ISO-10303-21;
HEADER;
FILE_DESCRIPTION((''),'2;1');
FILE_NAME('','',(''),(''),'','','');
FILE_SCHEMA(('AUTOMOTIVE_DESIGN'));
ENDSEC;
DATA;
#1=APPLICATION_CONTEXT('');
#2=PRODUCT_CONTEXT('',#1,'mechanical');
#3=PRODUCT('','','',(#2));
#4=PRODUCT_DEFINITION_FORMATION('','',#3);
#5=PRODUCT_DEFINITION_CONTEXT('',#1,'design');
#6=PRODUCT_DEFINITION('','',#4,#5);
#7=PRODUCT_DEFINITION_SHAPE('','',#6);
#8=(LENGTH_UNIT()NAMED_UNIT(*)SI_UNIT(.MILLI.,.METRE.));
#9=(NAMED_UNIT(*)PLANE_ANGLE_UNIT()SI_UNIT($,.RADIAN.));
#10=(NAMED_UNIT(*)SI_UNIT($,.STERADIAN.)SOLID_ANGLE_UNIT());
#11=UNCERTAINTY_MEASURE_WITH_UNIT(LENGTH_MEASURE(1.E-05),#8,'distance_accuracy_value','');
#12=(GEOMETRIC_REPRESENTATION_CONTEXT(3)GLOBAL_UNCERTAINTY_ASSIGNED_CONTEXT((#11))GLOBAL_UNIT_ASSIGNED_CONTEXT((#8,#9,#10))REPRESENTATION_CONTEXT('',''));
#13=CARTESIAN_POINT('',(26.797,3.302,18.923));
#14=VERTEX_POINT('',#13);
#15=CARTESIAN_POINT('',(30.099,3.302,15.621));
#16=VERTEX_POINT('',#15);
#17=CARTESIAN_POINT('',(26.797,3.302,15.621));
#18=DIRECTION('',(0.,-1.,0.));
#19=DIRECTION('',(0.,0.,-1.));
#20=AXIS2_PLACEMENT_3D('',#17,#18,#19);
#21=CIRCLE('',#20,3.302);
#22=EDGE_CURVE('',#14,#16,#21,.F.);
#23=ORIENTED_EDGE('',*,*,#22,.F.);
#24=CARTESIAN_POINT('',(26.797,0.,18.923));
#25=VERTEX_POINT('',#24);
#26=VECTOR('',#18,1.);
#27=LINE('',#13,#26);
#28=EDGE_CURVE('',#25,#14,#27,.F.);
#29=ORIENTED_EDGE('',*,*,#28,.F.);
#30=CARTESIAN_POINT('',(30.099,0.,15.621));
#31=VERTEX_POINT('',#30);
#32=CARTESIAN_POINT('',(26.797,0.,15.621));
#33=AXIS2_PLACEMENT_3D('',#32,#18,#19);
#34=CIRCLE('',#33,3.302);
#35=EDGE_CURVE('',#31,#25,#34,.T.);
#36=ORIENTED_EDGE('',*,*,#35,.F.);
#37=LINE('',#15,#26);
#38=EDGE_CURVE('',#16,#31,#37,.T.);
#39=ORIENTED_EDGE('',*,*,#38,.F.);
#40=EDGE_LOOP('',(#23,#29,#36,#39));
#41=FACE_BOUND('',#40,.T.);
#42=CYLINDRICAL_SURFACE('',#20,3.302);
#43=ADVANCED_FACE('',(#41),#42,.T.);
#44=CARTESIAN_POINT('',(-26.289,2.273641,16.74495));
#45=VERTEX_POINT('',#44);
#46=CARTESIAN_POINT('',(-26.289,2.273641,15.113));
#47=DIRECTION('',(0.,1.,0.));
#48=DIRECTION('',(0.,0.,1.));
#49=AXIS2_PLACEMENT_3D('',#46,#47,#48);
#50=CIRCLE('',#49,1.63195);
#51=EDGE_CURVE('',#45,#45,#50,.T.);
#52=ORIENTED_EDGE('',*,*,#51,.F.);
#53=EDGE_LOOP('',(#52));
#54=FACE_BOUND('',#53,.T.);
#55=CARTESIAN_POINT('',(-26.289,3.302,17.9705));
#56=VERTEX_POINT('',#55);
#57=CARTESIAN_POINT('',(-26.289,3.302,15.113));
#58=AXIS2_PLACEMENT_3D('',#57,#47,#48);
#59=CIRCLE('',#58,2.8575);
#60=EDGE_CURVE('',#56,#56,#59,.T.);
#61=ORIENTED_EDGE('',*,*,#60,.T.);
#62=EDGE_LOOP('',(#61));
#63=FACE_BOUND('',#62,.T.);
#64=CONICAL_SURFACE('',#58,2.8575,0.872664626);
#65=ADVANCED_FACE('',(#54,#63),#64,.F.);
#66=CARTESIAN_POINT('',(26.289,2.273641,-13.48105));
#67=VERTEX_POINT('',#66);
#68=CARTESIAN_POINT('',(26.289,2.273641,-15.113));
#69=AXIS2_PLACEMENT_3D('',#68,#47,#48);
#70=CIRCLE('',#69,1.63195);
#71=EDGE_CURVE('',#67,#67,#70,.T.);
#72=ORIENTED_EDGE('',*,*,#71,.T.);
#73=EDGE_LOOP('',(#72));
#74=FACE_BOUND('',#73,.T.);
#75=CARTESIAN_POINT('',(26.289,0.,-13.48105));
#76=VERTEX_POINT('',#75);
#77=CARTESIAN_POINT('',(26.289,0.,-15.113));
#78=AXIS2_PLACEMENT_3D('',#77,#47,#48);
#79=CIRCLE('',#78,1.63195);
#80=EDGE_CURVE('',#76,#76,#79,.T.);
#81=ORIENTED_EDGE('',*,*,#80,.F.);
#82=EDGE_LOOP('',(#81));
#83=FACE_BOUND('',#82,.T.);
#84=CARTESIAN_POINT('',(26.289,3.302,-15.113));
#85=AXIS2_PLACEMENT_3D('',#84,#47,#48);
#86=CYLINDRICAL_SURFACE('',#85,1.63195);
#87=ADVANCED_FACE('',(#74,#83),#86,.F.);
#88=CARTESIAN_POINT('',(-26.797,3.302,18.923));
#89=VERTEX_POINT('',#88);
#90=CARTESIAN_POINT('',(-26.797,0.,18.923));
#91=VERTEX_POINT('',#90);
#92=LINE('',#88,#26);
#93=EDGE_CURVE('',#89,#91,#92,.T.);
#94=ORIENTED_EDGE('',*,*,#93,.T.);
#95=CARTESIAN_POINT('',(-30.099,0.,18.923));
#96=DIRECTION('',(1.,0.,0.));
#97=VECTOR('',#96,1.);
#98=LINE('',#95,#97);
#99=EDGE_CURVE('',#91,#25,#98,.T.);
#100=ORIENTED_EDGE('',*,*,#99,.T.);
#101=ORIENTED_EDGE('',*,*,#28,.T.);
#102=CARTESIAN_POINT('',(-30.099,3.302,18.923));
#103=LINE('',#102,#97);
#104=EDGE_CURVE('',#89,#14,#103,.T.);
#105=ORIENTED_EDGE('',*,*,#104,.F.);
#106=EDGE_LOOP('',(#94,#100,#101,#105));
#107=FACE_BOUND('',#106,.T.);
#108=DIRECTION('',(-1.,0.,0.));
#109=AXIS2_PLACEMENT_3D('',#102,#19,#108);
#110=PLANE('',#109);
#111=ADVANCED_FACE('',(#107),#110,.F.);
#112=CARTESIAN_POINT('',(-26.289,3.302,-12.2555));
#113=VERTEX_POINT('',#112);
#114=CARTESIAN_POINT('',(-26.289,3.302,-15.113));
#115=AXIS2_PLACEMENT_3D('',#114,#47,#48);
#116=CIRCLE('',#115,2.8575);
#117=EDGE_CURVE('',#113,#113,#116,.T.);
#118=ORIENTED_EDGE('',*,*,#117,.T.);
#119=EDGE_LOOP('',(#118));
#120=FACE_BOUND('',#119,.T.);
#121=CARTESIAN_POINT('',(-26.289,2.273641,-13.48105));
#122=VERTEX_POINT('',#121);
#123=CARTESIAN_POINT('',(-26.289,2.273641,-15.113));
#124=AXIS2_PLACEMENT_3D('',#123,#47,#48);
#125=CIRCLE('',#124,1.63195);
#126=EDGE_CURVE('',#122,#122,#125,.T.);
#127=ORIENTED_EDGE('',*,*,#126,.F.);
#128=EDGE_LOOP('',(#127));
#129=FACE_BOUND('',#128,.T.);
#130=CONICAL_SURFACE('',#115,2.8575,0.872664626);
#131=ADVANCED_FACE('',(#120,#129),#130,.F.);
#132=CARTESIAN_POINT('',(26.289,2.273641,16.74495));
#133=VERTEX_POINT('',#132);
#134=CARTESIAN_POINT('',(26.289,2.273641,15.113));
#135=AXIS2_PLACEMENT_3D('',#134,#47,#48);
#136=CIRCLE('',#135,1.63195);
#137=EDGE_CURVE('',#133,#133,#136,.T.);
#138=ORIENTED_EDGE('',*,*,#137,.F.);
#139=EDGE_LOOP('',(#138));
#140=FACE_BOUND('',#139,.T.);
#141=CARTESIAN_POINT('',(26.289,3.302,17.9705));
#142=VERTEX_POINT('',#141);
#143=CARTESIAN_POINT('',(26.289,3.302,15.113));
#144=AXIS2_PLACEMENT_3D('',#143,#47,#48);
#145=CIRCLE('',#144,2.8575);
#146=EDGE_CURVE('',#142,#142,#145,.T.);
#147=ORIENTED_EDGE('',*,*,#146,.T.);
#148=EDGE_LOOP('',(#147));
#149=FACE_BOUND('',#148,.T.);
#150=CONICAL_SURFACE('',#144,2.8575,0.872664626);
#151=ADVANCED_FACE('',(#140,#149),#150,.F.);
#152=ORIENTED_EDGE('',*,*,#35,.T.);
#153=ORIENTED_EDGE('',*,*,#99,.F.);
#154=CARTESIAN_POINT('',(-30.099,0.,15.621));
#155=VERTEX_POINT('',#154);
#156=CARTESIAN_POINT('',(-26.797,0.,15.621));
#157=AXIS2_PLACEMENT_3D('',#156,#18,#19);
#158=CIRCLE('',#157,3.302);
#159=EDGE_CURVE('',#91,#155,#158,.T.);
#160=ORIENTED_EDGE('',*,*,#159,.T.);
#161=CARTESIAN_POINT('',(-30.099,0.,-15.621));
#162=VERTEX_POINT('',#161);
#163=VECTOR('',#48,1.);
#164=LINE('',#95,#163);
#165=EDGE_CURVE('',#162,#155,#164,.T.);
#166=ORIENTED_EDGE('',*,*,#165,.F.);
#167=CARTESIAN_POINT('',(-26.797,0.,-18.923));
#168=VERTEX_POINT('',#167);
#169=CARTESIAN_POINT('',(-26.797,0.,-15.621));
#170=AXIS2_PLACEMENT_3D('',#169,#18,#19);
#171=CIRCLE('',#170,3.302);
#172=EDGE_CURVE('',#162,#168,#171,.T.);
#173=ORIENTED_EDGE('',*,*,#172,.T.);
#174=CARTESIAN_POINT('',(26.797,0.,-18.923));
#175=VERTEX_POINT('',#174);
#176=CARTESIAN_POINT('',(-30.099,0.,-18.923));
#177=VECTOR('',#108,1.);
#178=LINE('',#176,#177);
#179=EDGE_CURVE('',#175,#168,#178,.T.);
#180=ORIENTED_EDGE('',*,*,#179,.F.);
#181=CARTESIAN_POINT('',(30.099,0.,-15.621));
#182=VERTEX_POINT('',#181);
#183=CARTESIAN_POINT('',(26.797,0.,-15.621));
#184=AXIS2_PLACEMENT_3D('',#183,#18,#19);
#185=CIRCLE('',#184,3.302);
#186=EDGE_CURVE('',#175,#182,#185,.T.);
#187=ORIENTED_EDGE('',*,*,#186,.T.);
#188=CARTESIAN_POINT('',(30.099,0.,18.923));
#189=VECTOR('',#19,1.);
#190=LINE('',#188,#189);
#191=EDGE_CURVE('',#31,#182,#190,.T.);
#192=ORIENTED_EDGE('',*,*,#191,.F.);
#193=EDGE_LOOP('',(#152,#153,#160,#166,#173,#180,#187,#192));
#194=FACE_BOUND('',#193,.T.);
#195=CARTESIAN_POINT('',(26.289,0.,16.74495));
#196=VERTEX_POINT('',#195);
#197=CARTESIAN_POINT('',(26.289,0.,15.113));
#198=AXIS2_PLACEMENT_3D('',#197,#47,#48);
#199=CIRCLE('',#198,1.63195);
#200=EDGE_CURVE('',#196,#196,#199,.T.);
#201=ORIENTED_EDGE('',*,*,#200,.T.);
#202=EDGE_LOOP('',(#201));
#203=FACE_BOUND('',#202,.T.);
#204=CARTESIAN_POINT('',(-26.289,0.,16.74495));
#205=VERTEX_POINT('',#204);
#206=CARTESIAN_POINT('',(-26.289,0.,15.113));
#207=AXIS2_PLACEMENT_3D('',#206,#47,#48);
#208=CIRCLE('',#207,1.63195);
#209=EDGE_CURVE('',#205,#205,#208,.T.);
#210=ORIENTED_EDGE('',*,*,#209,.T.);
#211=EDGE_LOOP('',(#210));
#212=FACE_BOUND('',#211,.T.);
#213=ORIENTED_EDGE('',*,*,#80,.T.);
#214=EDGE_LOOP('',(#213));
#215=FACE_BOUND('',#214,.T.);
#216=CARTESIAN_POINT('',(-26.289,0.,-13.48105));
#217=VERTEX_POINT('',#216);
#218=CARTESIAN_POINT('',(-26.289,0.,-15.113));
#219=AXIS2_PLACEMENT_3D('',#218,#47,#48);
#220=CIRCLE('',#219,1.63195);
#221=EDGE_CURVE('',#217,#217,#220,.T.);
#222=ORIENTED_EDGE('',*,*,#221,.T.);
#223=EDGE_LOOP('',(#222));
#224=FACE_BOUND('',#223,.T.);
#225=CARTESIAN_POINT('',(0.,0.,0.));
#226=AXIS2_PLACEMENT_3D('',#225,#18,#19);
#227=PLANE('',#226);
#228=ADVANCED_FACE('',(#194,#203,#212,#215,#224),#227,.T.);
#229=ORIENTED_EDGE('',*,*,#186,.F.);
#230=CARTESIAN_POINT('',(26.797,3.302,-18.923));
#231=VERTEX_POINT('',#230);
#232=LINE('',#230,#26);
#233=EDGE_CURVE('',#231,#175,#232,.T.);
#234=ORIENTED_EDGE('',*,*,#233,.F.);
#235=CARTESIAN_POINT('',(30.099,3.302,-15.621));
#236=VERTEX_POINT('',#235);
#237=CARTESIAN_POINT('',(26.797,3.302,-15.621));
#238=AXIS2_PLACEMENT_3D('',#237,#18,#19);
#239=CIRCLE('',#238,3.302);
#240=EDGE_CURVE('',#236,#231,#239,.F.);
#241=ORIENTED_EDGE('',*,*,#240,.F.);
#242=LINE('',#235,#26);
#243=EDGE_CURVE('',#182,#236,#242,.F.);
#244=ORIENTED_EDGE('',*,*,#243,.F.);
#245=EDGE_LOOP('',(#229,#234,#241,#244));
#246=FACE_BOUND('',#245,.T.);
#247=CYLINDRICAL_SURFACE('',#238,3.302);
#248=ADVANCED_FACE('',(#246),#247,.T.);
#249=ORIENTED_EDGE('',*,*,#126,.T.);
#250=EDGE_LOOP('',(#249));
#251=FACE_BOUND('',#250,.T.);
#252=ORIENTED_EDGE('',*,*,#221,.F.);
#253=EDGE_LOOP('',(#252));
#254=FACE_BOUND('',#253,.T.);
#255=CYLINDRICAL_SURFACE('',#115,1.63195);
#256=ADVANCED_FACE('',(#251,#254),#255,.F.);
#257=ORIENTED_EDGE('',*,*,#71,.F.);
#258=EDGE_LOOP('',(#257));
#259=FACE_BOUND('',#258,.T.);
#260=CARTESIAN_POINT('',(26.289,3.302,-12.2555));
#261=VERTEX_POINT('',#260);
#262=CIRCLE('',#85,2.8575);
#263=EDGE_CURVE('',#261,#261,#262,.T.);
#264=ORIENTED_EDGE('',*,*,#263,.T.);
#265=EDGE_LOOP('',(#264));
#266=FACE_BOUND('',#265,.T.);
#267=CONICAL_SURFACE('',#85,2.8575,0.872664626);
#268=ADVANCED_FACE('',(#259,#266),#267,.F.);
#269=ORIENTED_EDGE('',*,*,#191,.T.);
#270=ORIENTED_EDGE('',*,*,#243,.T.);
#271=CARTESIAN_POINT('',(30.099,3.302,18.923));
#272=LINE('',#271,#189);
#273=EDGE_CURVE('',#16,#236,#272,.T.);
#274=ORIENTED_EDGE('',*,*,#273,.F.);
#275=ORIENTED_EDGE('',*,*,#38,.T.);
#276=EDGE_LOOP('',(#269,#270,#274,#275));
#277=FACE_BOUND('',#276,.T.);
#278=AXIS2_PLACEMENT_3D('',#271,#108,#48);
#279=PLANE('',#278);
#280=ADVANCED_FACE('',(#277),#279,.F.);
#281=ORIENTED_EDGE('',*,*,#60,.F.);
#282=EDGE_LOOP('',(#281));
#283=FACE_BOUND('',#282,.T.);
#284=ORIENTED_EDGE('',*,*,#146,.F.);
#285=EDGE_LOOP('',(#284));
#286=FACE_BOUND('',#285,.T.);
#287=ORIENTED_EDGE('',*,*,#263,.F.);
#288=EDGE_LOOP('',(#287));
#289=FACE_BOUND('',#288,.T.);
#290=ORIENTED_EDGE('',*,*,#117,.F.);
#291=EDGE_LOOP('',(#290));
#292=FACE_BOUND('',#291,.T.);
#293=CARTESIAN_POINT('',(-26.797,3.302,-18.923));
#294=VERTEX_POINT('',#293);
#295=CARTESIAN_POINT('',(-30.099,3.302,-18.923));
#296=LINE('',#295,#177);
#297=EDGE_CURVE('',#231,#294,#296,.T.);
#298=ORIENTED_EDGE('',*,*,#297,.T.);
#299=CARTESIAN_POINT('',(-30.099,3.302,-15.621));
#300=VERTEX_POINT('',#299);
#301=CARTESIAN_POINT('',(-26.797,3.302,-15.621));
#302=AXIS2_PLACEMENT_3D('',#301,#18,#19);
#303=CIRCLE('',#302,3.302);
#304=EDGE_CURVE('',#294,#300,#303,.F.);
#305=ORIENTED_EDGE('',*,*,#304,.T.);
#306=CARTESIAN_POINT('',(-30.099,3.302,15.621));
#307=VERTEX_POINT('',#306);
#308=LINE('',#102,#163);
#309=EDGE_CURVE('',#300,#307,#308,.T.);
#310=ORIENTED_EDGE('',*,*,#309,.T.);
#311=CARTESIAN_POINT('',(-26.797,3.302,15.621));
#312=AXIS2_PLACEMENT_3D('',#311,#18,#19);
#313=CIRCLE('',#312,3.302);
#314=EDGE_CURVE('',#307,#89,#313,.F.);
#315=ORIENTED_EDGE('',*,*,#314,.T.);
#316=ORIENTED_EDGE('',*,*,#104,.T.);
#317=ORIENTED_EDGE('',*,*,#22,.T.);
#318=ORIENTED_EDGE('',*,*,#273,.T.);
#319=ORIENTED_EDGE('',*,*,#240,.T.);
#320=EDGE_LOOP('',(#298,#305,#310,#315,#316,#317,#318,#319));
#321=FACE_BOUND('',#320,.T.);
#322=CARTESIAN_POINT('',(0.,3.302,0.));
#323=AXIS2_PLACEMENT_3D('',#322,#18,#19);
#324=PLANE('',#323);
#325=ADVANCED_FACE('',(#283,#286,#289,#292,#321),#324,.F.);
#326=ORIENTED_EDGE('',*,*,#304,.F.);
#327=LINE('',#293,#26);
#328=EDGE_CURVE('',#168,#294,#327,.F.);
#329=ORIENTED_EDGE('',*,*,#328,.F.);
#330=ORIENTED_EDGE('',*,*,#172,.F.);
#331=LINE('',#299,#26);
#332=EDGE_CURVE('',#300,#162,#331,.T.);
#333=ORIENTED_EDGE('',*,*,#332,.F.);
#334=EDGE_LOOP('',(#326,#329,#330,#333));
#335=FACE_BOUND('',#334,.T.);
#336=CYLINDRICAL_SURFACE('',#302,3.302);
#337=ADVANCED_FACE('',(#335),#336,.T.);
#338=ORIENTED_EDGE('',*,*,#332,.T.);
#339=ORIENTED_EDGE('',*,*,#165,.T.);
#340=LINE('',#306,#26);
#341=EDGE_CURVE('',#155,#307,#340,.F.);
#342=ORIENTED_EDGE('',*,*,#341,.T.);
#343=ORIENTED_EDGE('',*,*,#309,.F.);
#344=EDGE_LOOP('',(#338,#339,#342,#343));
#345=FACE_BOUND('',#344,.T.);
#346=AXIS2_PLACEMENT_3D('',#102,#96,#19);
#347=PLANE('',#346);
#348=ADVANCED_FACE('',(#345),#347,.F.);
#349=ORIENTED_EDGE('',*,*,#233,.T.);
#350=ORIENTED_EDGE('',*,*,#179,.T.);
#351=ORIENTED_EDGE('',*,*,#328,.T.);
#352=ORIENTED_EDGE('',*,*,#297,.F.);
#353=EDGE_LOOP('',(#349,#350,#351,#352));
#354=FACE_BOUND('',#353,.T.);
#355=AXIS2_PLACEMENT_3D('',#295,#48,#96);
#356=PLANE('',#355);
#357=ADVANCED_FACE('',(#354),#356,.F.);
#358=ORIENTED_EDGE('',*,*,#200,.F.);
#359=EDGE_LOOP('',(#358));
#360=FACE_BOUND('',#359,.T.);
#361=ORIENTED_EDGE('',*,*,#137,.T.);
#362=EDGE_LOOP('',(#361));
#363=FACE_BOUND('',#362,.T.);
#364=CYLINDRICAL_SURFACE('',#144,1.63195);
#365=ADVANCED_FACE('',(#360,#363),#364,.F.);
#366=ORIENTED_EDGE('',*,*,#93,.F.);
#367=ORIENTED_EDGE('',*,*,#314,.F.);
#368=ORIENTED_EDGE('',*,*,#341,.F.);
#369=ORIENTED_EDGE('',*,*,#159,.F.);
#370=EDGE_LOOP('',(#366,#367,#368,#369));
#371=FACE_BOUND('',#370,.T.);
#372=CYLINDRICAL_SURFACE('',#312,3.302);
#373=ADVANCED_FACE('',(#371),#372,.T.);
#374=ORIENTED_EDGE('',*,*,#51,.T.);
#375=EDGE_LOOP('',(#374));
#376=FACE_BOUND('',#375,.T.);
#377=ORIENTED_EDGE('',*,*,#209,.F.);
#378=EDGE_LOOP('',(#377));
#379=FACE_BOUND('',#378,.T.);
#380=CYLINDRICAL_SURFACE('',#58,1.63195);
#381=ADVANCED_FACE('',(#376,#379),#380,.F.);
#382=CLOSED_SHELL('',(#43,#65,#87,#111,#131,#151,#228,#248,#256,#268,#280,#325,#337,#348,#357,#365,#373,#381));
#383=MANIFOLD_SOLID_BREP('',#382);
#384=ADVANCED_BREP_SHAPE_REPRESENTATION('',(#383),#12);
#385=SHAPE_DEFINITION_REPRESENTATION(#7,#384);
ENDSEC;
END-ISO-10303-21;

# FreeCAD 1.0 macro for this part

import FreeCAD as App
import Part
import Sketcher

V = App.Vector
Q = App.Units.Quantity


def edges_at(feature, points):
    """Names of the edges that pass closest to the given points."""
    edges = feature.Shape.Edges
    near = lambda p: min(range(len(edges)), key=lambda i: edges[i].distToShape(Part.Vertex(*p))[0])
    return sorted({f"Edge{near(p) + 1}" for p in points})


def add_polygon(sketch, points):
    """Adds a closed chain of lines whose ends are joined by coincident constraints."""
    first, n = sketch.GeometryCount, len(points)
    for a, b in zip(points, points[1:] + points[:1]):
        sketch.addGeometry(Part.LineSegment(App.Vector(*a, 0), App.Vector(*b, 0)), False)
    for i in range(n):
        sketch.addConstraint(Sketcher.Constraint("Coincident", first + i, 2, first + (i + 1) % n, 1))

doc = App.newDocument("Part")
body = doc.addObject("PartDesign::Body", "Body")

# Sketch on XZ plane
sketch1 = body.newObject("Sketcher::SketchObject", "Sketch")
sketch1.AttachmentSupport = (doc.getObject("XZ_Plane"), [""])
sketch1.MapMode = "FlatFace"
add_polygon(sketch1, [(-30, -19), (-30, 19), (30, 19), (30, -19)])  # lines 0-3
sketch1.addConstraint(Sketcher.Constraint("Vertical", 0))
sketch1.addConstraint(Sketcher.Constraint("Horizontal", 1))
sketch1.addConstraint(Sketcher.Constraint("Vertical", 2))
sketch1.addConstraint(Sketcher.Constraint("Horizontal", 3))
sketch1.addConstraint(Sketcher.Constraint("Symmetric", 0, 2, 2, 2, -1, 1))
sketch1.addConstraint(Sketcher.Constraint("DistanceX", 1, 1, 1, 2, Q("2.37 in")))
sketch1.addConstraint(Sketcher.Constraint("DistanceY", 0, 1, 0, 2, Q("1.49 in")))
pad1 = body.newObject("PartDesign::Pad", "Pad")
pad1.Profile = sketch1
pad1.Length = Q("0.13 in")
pad1.Reversed = True
doc.recompute()

fillet = body.newObject("PartDesign::Fillet", "Fillet")
fillet.Base = (pad1, edges_at(pad1, [
    (30.099, 1.651, 18.923),
    (-30.099, 1.651, 18.923),
    (-30.099, 1.651, -18.923),
    (30.099, 1.651, -18.923),
]))
fillet.Radius = Q("0.13 in")

# Sketch on XZ plane
sketch2 = body.newObject("Sketcher::SketchObject", "Sketch001")
sketch2.AttachmentSupport = (doc.getObject("XZ_Plane"), [""])
sketch2.MapMode = "FlatFace"
sketch2.AttachmentOffset = App.Placement(V(0, 0, -0.13 * 25.4), App.Rotation())
sketch2.addGeometry(Part.Circle(V(-26.3, -15.1, 0), V(0, 0, 1), 1.6), False)
sketch2.addGeometry(Part.Circle(V(-26.3, 15.1, 0), V(0, 0, 1), 1.6), False)
sketch2.addGeometry(Part.Circle(V(26.3, 15.1, 0), V(0, 0, 1), 1.6), False)
sketch2.addGeometry(Part.Circle(V(26.3, -15.1, 0), V(0, 0, 1), 1.6), False)
sketch2.addConstraint(Sketcher.Constraint("Equal", 0, 1))
sketch2.addConstraint(Sketcher.Constraint("Equal", 1, 2))
sketch2.addConstraint(Sketcher.Constraint("Equal", 2, 3))
sketch2.addConstraint(Sketcher.Constraint("Symmetric", 0, 3, 2, 3, -1, 1))
sketch2.addConstraint(Sketcher.Constraint("Symmetric", 1, 3, 3, 3, -1, 1))
sketch2.addConstraint(Sketcher.Constraint("Symmetric", 1, 3, 2, 3, -2))
sketch2.addConstraint(Sketcher.Constraint("Diameter", 0, Q("0.1285 in")))
sketch2.addConstraint(Sketcher.Constraint("DistanceY", 0, 3, 1, 3, Q("1.19 in")))
sketch2.addConstraint(Sketcher.Constraint("DistanceX", 1, 3, 2, 3, Q("2.07 in")))
doc.recompute()
hole = body.newObject("PartDesign::Hole", "Hole")
hole.Profile = sketch2
hole.ThreadType = "None"
hole.Diameter = Q("0.1285 in")
hole.DepthType = "ThroughAll"
hole.HoleCutType = "Countersink"
hole.HoleCutDiameter = Q("0.225 in")
hole.HoleCutCountersinkAngle = 100
hole.Reversed = True

doc.recompute()
